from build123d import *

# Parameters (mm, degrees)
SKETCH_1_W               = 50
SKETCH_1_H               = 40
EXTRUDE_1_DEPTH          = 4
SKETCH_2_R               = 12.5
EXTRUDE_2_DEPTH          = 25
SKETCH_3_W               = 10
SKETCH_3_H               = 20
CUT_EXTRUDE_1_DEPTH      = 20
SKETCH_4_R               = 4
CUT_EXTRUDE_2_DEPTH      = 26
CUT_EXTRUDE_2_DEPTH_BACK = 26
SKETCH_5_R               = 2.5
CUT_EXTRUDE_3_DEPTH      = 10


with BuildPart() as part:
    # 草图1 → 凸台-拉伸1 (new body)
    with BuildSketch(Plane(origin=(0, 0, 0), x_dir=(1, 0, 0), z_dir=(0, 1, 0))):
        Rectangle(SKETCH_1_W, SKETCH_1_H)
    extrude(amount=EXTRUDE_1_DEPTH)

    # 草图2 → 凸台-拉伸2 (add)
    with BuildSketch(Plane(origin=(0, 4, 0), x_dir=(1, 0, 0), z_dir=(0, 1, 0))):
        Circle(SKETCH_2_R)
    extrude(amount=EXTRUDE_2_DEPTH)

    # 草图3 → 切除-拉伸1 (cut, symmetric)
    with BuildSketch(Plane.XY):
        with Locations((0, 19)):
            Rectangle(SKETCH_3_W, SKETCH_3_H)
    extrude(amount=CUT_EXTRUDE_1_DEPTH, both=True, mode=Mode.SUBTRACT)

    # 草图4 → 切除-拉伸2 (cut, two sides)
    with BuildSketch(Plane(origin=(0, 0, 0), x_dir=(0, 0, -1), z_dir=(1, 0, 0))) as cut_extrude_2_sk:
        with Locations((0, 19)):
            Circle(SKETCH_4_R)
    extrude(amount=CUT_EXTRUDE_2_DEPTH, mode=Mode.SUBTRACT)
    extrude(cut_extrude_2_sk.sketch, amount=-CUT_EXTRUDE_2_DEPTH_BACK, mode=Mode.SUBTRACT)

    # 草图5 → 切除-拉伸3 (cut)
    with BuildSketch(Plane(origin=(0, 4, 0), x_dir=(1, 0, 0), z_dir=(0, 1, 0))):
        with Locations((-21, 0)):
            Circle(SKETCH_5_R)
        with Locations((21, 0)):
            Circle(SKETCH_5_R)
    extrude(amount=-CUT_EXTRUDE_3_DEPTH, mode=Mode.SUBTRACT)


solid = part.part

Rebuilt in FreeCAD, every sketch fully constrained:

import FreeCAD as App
import Part
import Sketcher
from FreeCAD import Vector

doc = App.newDocument("Part")
body = doc.addObject("PartDesign::Body", "Body")

sketch1 = doc.addObject("Sketcher::SketchObject", "Sketch")
body.addObject(sketch1)
sketch1.AttachmentSupport = (doc.XZ_Plane, [""])
sketch1.MapMode = "FlatFace"
sketch1.addGeometry([
    Part.LineSegment(Vector(-25, -20, 0), Vector(-25, 20, 0)),
    Part.LineSegment(Vector(-25, 20, 0), Vector(25, 20, 0)),
    Part.LineSegment(Vector(25, 20, 0), Vector(25, -20, 0)),
    Part.LineSegment(Vector(25, -20, 0), Vector(-25, -20, 0)),
], False)
sketch1.addConstraint([
    Sketcher.Constraint("Coincident", 0, 2, 1, 1),
    Sketcher.Constraint("Coincident", 1, 2, 2, 1),
    Sketcher.Constraint("Coincident", 2, 2, 3, 1),
    Sketcher.Constraint("Coincident", 3, 2, 0, 1),
    Sketcher.Constraint("Vertical", 0),
    Sketcher.Constraint("Horizontal", 1),
    Sketcher.Constraint("Vertical", 2),
    Sketcher.Constraint("Horizontal", 3),
    Sketcher.Constraint("Symmetric", 0, 2, 2, 2, -1, 1),
    Sketcher.Constraint("DistanceX", 1, 1, 1, 2, 50.0),
    Sketcher.Constraint("DistanceY", 0, 1, 0, 2, 40.0),
])
pad1 = doc.addObject("PartDesign::Pad", "Pad")
body.addObject(pad1)
pad1.Profile = sketch1
pad1.Length = 4
pad1.Reversed = True

sketch2 = doc.addObject("Sketcher::SketchObject", "Sketch001")
body.addObject(sketch2)
sketch2.AttachmentSupport = (doc.XZ_Plane, [""])
sketch2.MapMode = "FlatFace"
sketch2.AttachmentOffset = App.Placement(Vector(0, 0, -4), App.Rotation())
sketch2.addGeometry(Part.Circle(Vector(0, 0, 0), Vector(0, 0, 1), 12), False)
sketch2.addConstraint([
    Sketcher.Constraint("Coincident", 0, 3, -1, 1),
    Sketcher.Constraint("Diameter", 0, 25.0),
])
pad2 = doc.addObject("PartDesign::Pad", "Pad001")
body.addObject(pad2)
pad2.Profile = sketch2
pad2.Length = 25
pad2.Reversed = True

sketch3 = doc.addObject("Sketcher::SketchObject", "Sketch002")
body.addObject(sketch3)
sketch3.AttachmentSupport = (doc.XY_Plane, [""])
sketch3.MapMode = "FlatFace"
sketch3.addGeometry([
    Part.LineSegment(Vector(-5, 29, 0), Vector(-5, 9, 0)),
    Part.LineSegment(Vector(-5, 9, 0), Vector(5, 9, 0)),
    Part.LineSegment(Vector(5, 9, 0), Vector(5, 29, 0)),
    Part.LineSegment(Vector(5, 29, 0), Vector(-5, 29, 0)),
], False)
sketch3.addConstraint([
    Sketcher.Constraint("Coincident", 0, 2, 1, 1),
    Sketcher.Constraint("Coincident", 1, 2, 2, 1),
    Sketcher.Constraint("Coincident", 2, 2, 3, 1),
    Sketcher.Constraint("Coincident", 3, 2, 0, 1),
    Sketcher.Constraint("Vertical", 0),
    Sketcher.Constraint("Horizontal", 1),
    Sketcher.Constraint("Vertical", 2),
    Sketcher.Constraint("Horizontal", 3),
    Sketcher.Constraint("DistanceX", 1, 1, 1, 2, 10.0),
    Sketcher.Constraint("DistanceY", 0, 2, 0, 1, 20.0),
    Sketcher.Constraint("DistanceX", 0, 2, -1, 1, 5.0),
    Sketcher.Constraint("DistanceY", -1, 1, 0, 2, 9.0),
])
pocket1 = doc.addObject("PartDesign::Pocket", "Pocket")
body.addObject(pocket1)
pocket1.Profile = sketch3
pocket1.Length = 40
pocket1.Midplane = True

sketch4 = doc.addObject("Sketcher::SketchObject", "Sketch003")
body.addObject(sketch4)
sketch4.AttachmentSupport = (doc.YZ_Plane, [""])
sketch4.MapMode = "FlatFace"
sketch4.addGeometry(Part.Circle(Vector(19, 0, 0), Vector(0, 0, 1), 4), False)
sketch4.addConstraint([
    Sketcher.Constraint("PointOnObject", 0, 3, -1),
    Sketcher.Constraint("Diameter", 0, 8.0),
    Sketcher.Constraint("DistanceX", -1, 1, 0, 3, 19.0),
])
pocket2 = doc.addObject("PartDesign::Pocket", "Pocket001")
body.addObject(pocket2)
pocket2.Profile = sketch4
pocket2.Type = "ThroughAll"
pocket2.Midplane = True

sketch5 = doc.addObject("Sketcher::SketchObject", "Sketch004")
body.addObject(sketch5)
sketch5.AttachmentSupport = (doc.XZ_Plane, [""])
sketch5.MapMode = "FlatFace"
sketch5.AttachmentOffset = App.Placement(Vector(0, 0, -4), App.Rotation())
sketch5.addGeometry([
    Part.Circle(Vector(-21, 0, 0), Vector(0, 0, 1), 2.5),
    Part.Circle(Vector(21, 0, 0), Vector(0, 0, 1), 2.5),
], False)
sketch5.addConstraint([
    Sketcher.Constraint("Equal", 0, 1),
    Sketcher.Constraint("Symmetric", 0, 3, 1, 3, -1, 1),
    Sketcher.Constraint("PointOnObject", 0, 3, -1),
    Sketcher.Constraint("Diameter", 0, 5.0),
    Sketcher.Constraint("DistanceX", 0, 3, -1, 1, 21.0),
])
pocket3 = doc.addObject("PartDesign::Pocket", "Pocket002")
body.addObject(pocket3)
pocket3.Profile = sketch5
pocket3.Length = 10
pocket3.Reversed = True

doc.recompute()
